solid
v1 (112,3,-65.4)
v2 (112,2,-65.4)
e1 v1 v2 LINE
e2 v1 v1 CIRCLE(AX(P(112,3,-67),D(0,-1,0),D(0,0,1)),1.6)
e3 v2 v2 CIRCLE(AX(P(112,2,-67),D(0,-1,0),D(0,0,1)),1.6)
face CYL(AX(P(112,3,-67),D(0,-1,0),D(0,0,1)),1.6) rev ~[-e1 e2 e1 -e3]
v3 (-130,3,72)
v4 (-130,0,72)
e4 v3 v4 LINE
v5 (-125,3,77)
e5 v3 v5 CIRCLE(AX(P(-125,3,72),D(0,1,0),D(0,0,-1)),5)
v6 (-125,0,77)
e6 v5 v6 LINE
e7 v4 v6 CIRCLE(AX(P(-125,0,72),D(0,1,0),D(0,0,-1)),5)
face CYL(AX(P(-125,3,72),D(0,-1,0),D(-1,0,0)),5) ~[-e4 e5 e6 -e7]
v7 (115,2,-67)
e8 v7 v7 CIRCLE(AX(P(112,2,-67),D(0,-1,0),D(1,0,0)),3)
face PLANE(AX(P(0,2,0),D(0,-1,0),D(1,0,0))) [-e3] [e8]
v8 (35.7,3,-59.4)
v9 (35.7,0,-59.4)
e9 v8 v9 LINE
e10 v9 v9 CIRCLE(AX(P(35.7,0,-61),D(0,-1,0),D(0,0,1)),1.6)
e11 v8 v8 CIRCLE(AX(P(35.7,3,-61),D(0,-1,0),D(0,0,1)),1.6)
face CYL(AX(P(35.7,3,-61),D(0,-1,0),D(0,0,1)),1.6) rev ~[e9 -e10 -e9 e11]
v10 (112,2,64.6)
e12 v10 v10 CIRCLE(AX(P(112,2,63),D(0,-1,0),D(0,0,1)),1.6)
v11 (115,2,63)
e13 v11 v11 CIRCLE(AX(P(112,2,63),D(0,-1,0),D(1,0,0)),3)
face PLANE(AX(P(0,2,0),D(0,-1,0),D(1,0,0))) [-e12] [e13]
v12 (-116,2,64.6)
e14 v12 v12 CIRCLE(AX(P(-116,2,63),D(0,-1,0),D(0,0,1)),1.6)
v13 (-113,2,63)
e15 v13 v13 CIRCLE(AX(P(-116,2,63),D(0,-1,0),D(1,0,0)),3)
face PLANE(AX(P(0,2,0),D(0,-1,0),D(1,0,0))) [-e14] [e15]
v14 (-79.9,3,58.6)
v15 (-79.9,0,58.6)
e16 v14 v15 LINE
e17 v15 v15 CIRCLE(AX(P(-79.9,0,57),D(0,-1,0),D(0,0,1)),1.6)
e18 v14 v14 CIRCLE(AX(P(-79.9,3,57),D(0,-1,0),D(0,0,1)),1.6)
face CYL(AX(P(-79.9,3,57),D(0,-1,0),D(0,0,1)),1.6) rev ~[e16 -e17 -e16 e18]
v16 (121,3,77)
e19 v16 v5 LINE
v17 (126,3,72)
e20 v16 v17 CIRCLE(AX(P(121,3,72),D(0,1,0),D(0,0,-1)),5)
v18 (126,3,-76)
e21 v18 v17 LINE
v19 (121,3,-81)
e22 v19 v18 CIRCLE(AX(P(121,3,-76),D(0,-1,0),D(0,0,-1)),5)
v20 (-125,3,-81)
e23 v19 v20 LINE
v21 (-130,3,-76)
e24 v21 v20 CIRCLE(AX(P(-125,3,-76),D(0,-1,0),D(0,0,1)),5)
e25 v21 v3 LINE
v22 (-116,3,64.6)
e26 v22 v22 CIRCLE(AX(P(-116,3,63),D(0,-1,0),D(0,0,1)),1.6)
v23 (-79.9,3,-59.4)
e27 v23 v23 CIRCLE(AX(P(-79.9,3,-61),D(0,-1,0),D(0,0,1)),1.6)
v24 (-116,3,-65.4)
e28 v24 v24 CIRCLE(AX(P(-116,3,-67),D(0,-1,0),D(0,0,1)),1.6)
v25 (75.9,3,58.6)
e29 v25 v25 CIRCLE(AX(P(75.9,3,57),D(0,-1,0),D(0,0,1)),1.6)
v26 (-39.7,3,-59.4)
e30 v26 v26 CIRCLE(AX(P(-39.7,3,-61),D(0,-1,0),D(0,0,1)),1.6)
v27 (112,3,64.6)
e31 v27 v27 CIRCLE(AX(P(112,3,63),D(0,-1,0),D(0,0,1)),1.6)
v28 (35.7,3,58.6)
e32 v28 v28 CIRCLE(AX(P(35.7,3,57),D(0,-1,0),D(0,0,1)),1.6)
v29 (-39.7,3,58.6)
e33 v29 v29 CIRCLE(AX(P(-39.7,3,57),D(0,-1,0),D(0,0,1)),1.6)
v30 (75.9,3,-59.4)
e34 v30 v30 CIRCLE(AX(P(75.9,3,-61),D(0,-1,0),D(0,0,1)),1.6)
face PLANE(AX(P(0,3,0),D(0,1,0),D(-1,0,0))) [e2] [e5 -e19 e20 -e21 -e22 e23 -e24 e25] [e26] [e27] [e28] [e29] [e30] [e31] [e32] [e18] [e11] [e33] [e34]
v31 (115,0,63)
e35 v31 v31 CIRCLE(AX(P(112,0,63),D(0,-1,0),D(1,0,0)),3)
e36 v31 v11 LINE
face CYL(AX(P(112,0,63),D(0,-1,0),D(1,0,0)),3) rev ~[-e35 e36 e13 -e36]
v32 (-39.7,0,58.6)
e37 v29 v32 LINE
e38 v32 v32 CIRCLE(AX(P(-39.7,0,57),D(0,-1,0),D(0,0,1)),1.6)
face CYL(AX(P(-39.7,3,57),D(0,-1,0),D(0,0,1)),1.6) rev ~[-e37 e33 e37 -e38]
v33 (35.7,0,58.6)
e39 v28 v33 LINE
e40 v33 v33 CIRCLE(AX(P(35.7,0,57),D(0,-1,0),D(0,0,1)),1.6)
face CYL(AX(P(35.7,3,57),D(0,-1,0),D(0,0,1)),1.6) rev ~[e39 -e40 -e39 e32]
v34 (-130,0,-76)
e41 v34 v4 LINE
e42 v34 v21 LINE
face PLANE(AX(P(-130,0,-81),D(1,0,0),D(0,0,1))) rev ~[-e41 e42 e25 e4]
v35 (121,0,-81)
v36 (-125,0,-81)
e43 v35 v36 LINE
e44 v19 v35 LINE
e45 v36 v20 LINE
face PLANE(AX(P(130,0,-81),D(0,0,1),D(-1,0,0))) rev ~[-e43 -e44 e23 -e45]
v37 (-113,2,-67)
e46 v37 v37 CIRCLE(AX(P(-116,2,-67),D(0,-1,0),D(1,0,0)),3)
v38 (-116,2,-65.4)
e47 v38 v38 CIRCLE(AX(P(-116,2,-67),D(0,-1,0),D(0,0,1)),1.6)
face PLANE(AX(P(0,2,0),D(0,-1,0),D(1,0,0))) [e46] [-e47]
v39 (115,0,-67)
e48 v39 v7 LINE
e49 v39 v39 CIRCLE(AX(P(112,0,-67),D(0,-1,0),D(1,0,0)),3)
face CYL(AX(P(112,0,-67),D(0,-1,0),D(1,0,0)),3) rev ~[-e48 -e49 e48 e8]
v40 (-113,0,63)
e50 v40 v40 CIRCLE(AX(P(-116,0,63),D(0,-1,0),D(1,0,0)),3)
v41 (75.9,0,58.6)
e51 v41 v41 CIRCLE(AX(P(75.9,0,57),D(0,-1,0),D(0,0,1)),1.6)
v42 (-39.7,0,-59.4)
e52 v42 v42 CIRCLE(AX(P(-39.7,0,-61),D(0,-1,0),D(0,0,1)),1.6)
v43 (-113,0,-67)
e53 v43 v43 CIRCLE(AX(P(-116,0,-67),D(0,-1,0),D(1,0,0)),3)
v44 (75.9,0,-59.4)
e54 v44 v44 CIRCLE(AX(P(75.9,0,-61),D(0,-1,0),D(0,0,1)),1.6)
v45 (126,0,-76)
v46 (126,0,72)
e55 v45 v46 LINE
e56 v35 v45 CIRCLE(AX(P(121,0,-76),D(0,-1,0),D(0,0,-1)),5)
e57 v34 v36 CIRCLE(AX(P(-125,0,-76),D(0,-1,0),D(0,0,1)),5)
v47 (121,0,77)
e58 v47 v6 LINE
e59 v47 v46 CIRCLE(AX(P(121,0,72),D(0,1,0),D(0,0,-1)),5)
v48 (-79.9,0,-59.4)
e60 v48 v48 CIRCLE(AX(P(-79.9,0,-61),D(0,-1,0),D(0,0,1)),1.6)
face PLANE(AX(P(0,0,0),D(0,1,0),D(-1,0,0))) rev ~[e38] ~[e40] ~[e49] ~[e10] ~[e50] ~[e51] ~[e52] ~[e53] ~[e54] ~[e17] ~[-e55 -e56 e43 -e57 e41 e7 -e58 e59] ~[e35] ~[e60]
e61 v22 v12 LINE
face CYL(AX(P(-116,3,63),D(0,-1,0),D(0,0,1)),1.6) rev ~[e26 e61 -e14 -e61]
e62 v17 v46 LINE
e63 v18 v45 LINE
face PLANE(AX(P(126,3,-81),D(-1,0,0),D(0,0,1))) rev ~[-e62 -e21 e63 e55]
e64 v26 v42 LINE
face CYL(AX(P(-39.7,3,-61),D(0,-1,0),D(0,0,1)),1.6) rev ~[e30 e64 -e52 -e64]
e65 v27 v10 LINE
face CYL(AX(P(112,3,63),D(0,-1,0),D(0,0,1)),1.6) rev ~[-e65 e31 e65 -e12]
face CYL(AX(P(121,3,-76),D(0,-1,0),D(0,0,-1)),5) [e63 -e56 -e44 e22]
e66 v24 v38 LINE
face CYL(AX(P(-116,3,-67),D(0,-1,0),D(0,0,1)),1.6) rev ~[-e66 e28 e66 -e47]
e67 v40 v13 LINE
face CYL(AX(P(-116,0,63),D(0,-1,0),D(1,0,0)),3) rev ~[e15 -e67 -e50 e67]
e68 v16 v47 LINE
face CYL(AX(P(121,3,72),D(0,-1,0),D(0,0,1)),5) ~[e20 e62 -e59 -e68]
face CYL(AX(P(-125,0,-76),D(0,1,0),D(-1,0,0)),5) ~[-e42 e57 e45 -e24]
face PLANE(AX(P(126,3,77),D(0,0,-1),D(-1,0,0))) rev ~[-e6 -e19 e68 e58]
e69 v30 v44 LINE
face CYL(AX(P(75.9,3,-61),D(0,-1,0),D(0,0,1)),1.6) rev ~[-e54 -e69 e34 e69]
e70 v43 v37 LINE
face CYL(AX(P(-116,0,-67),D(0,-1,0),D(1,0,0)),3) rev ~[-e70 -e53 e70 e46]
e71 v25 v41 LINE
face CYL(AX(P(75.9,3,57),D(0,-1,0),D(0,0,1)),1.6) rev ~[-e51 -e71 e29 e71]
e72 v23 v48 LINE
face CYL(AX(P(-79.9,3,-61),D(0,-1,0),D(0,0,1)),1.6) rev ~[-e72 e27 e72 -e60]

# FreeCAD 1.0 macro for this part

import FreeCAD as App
import Part
import Sketcher
from FreeCAD import Vector
Q = App.Units.Quantity


def edges_at(feature, points):
    """Names of the edges that pass closest to the given points."""
    edges = feature.Shape.Edges
    near = lambda p: min(range(len(edges)), key=lambda i: edges[i].distToShape(Part.Vertex(*p))[0])
    return sorted({f"Edge{near(p) + 1}" for p in points})

doc = App.newDocument("Part")
body = doc.addObject("PartDesign::Body", "Body")

sketch1 = body.newObject("Sketcher::SketchObject", "Sketch")
sketch1.AttachmentSupport = (doc.getObject("XZ_Plane"), [""])
sketch1.MapMode = "FlatFace"
sketch1.addGeometry([
    Part.LineSegment(Vector(-130, -81, 0), Vector(-130, 81, 0)),
    Part.LineSegment(Vector(-130, 81, 0), Vector(130, 81, 0)),
    Part.LineSegment(Vector(130, 81, 0), Vector(130, -81, 0)),
    Part.LineSegment(Vector(130, -81, 0), Vector(-130, -81, 0)),
], False)
sketch1.addConstraint([
    Sketcher.Constraint("Coincident", 0, 2, 1, 1),
    Sketcher.Constraint("Coincident", 1, 2, 2, 1),
    Sketcher.Constraint("Coincident", 2, 2, 3, 1),
    Sketcher.Constraint("Coincident", 3, 2, 0, 1),
    Sketcher.Constraint("Vertical", 0),
    Sketcher.Constraint("Horizontal", 1),
    Sketcher.Constraint("Vertical", 2),
    Sketcher.Constraint("Horizontal", 3),
    Sketcher.Constraint("Symmetric", 0, 2, 2, 2, -1, 1),
    Sketcher.Constraint("DistanceX", 1, 1, 1, 2, Q("260 mm")),
    Sketcher.Constraint("DistanceY", 0, 1, 0, 2, Q("162 mm")),
])
pad1 = body.newObject("PartDesign::Pad", "Pad")
pad1.Profile = sketch1
pad1.Length = 3
pad1.Reversed = True

sketch2 = body.newObject("Sketcher::SketchObject", "Sketch001")
sketch2.AttachmentSupport = (doc.getObject("XZ_Plane"), [""])
sketch2.MapMode = "FlatFace"
sketch2.AttachmentOffset = App.Placement(Vector(0, 0, -3), App.Rotation())
sketch2.addGeometry([
    Part.Circle(Vector(-116, -67, 0), Vector(0, 0, 1), 1.6),
    Part.Circle(Vector(112, -67, 0), Vector(0, 0, 1), 1.6),
    Part.Circle(Vector(112, 63, 0), Vector(0, 0, 1), 1.6),
    Part.Circle(Vector(-116, 63, 0), Vector(0, 0, 1), 1.6),
], False)
sketch2.addConstraint([
    Sketcher.Constraint("Equal", 0, 1),
    Sketcher.Constraint("Equal", 1, 2),
    Sketcher.Constraint("Equal", 2, 3),
    Sketcher.Constraint("Horizontal", 0, 3, 1, 3),
    Sketcher.Constraint("Horizontal", 2, 3, 3, 3),
    Sketcher.Constraint("Vertical", 1, 3, 2, 3),
    Sketcher.Constraint("Vertical", 0, 3, 3, 3),
    Sketcher.Constraint("Diameter", 0, Q("3.2 mm")),
    Sketcher.Constraint("DistanceX", 0, 3, -1, 1, Q("116 mm")),
    Sketcher.Constraint("DistanceY", 0, 3, -1, 1, Q("67 mm")),
    Sketcher.Constraint("DistanceX", -1, 1, 1, 3, Q("112 mm")),
    Sketcher.Constraint("DistanceY", -1, 1, 2, 3, Q("63 mm")),
])
doc.recompute()
hole = body.newObject("PartDesign::Hole", "Hole")
hole.Profile = sketch2
hole.ThreadType = "None"
hole.Diameter = 3.2
hole.DepthType = "Dimension"
hole.Depth = 8
hole.DrillPoint = "Flat"
hole.Reversed = True

sketch3 = body.newObject("Sketcher::SketchObject", "Sketch002")
sketch3.AttachmentSupport = (doc.getObject("XZ_Plane"), [""])
sketch3.MapMode = "FlatFace"
sketch3.AttachmentOffset = App.Placement(Vector(0, 0, -3), App.Rotation())
sketch3.addGeometry([
    Part.LineSegment(Vector(130, 81, 0), Vector(130, -81, 0)),
    Part.LineSegment(Vector(130, -81, 0), Vector(126, -81, 0)),
    Part.LineSegment(Vector(126, -81, 0), Vector(126, 77, 0)),
    Part.LineSegment(Vector(126, 77, 0), Vector(-130, 77, 0)),
    Part.LineSegment(Vector(-130, 77, 0), Vector(-130, 81, 0)),
    Part.LineSegment(Vector(-130, 81, 0), Vector(130, 81, 0)),
], False)
sketch3.addConstraint([
    Sketcher.Constraint("Coincident", 0, 2, 1, 1),
    Sketcher.Constraint("Coincident", 1, 2, 2, 1),
    Sketcher.Constraint("Coincident", 2, 2, 3, 1),
    Sketcher.Constraint("Coincident", 3, 2, 4, 1),
    Sketcher.Constraint("Coincident", 4, 2, 5, 1),
    Sketcher.Constraint("Coincident", 5, 2, 0, 1),
    Sketcher.Constraint("Vertical", 0),
    Sketcher.Constraint("Horizontal", 1),
    Sketcher.Constraint("Vertical", 2),
    Sketcher.Constraint("Horizontal", 3),
    Sketcher.Constraint("Vertical", 4),
    Sketcher.Constraint("Horizontal", 5),
    Sketcher.Constraint("Symmetric", 0, 2, 4, 2, -1, 1),
    Sketcher.Constraint("Equal", 1, 4),
    Sketcher.Constraint("DistanceX", 1, 2, 1, 1, Q("4 mm")),
    Sketcher.Constraint("DistanceX", 3, 2, 3, 1, Q("256 mm")),
    Sketcher.Constraint("DistanceY", 0, 2, 0, 1, Q("162 mm")),
])
pocket1 = body.newObject("PartDesign::Pocket", "Pocket")
pocket1.Profile = sketch3
pocket1.Length = 10
pocket1.Reversed = True
doc.recompute()

fillet = body.newObject("PartDesign::Fillet", "Fillet")
fillet.Base = (pocket1, edges_at(pocket1, [
    (-130, 1.5, -81),
    (-130, 1.5, 77),
    (126, 1.5, -81),
    (126, 1.5, 77),
]))
fillet.Radius = 5

sketch4 = body.newObject("Sketcher::SketchObject", "Sketch003")
sketch4.AttachmentSupport = (doc.getObject("XZ_Plane"), [""])
sketch4.MapMode = "FlatFace"
sketch4.AttachmentOffset = App.Placement(Vector(0, 0, -3), App.Rotation())
sketch4.addGeometry([
    Part.Circle(Vector(-79.9, -61, 0), Vector(0, 0, 1), 1.6),
    Part.Circle(Vector(-39.7, -61, 0), Vector(0, 0, 1), 1.6),
    Part.Circle(Vector(-79.9, 57, 0), Vector(0, 0, 1), 1.6),
    Part.Circle(Vector(-39.7, 57, 0), Vector(0, 0, 1), 1.6),
    Part.Circle(Vector(35.7, 57, 0), Vector(0, 0, 1), 1.6),
    Part.Circle(Vector(75.9, 57, 0), Vector(0, 0, 1), 1.6),
    Part.Circle(Vector(35.7, -61, 0), Vector(0, 0, 1), 1.6),
    Part.Circle(Vector(75.9, -61, 0), Vector(0, 0, 1), 1.6),
], False)
sketch4.addConstraint([
    Sketcher.Constraint("Equal", 0, 1),
    Sketcher.Constraint("Equal", 1, 2),
    Sketcher.Constraint("Equal", 2, 3),
    Sketcher.Constraint("Equal", 3, 4),
    Sketcher.Constraint("Equal", 4, 5),
    Sketcher.Constraint("Equal", 5, 6),
    Sketcher.Constraint("Equal", 6, 7),
    Sketcher.Constraint("Horizontal", 0, 3, 1, 3),
    Sketcher.Constraint("Horizontal", 2, 3, 3, 3),
    Sketcher.Constraint("Horizontal", 3, 3, 4, 3),
    Sketcher.Constraint("Horizontal", 4, 3, 5, 3),
    Sketcher.Constraint("Horizontal", 1, 3, 6, 3),
    Sketcher.Constraint("Horizontal", 6, 3, 7, 3),
    Sketcher.Constraint("Vertical", 0, 3, 2, 3),
    Sketcher.Constraint("Vertical", 1, 3, 3, 3),
    Sketcher.Constraint("Vertical", 4, 3, 6, 3),
    Sketcher.Constraint("Vertical", 5, 3, 7, 3),
    Sketcher.Constraint("Diameter", 0, Q("3.2 mm")),
    Sketcher.Constraint("DistanceY", 0, 3, -1, 1, Q("61 mm")),
    Sketcher.Constraint("DistanceY", -1, 1, 2, 3, Q("57 mm")),
    Sketcher.Constraint("DistanceX", 0, 3, -1, 1, Q("79.9 mm")),
    Sketcher.Constraint("DistanceX", 1, 3, -1, 1, Q("39.7 mm")),
    Sketcher.Constraint("DistanceX", -1, 1, 4, 3, Q("35.7 mm")),
    Sketcher.Constraint("DistanceX", -1, 1, 5, 3, Q("75.9 mm")),
])
doc.recompute()
hole2 = body.newObject("PartDesign::Hole", "Hole001")
hole2.Profile = sketch4
hole2.ThreadType = "None"
hole2.Diameter = 3.2
hole2.DepthType = "Dimension"
hole2.Depth = 8
hole2.DrillPoint = "Flat"
hole2.Reversed = True

sketch5 = body.newObject("Sketcher::SketchObject", "Sketch004")
sketch5.AttachmentSupport = (doc.getObject("XZ_Plane"), [""])
sketch5.MapMode = "FlatFace"
sketch5.addGeometry([
    Part.Circle(Vector(-116, 63, 0), Vector(0, 0, 1), 3),
    Part.Circle(Vector(112, 63, 0), Vector(0, 0, 1), 3),
    Part.Circle(Vector(112, -67, 0), Vector(0, 0, 1), 3),
    Part.Circle(Vector(-116, -67, 0), Vector(0, 0, 1), 3),
], False)
sketch5.addConstraint([
    Sketcher.Constraint("Equal", 0, 1),
    Sketcher.Constraint("Equal", 1, 2),
    Sketcher.Constraint("Equal", 2, 3),
    Sketcher.Constraint("Horizontal", 0, 3, 1, 3),
    Sketcher.Constraint("Horizontal", 2, 3, 3, 3),
    Sketcher.Constraint("Vertical", 1, 3, 2, 3),
    Sketcher.Constraint("Vertical", 0, 3, 3, 3),
    Sketcher.Constraint("Diameter", 0, Q("6 mm")),
    Sketcher.Constraint("DistanceX", 0, 3, -1, 1, Q("116 mm")),
    Sketcher.Constraint("DistanceY", -1, 1, 0, 3, Q("63 mm")),
    Sketcher.Constraint("DistanceX", -1, 1, 1, 3, Q("112 mm")),
    Sketcher.Constraint("DistanceY", 2, 3, -1, 1, Q("67 mm")),
])
pocket2 = body.newObject("PartDesign::Pocket", "Pocket001")
pocket2.Profile = sketch5
pocket2.Length = 2

doc.recompute()
